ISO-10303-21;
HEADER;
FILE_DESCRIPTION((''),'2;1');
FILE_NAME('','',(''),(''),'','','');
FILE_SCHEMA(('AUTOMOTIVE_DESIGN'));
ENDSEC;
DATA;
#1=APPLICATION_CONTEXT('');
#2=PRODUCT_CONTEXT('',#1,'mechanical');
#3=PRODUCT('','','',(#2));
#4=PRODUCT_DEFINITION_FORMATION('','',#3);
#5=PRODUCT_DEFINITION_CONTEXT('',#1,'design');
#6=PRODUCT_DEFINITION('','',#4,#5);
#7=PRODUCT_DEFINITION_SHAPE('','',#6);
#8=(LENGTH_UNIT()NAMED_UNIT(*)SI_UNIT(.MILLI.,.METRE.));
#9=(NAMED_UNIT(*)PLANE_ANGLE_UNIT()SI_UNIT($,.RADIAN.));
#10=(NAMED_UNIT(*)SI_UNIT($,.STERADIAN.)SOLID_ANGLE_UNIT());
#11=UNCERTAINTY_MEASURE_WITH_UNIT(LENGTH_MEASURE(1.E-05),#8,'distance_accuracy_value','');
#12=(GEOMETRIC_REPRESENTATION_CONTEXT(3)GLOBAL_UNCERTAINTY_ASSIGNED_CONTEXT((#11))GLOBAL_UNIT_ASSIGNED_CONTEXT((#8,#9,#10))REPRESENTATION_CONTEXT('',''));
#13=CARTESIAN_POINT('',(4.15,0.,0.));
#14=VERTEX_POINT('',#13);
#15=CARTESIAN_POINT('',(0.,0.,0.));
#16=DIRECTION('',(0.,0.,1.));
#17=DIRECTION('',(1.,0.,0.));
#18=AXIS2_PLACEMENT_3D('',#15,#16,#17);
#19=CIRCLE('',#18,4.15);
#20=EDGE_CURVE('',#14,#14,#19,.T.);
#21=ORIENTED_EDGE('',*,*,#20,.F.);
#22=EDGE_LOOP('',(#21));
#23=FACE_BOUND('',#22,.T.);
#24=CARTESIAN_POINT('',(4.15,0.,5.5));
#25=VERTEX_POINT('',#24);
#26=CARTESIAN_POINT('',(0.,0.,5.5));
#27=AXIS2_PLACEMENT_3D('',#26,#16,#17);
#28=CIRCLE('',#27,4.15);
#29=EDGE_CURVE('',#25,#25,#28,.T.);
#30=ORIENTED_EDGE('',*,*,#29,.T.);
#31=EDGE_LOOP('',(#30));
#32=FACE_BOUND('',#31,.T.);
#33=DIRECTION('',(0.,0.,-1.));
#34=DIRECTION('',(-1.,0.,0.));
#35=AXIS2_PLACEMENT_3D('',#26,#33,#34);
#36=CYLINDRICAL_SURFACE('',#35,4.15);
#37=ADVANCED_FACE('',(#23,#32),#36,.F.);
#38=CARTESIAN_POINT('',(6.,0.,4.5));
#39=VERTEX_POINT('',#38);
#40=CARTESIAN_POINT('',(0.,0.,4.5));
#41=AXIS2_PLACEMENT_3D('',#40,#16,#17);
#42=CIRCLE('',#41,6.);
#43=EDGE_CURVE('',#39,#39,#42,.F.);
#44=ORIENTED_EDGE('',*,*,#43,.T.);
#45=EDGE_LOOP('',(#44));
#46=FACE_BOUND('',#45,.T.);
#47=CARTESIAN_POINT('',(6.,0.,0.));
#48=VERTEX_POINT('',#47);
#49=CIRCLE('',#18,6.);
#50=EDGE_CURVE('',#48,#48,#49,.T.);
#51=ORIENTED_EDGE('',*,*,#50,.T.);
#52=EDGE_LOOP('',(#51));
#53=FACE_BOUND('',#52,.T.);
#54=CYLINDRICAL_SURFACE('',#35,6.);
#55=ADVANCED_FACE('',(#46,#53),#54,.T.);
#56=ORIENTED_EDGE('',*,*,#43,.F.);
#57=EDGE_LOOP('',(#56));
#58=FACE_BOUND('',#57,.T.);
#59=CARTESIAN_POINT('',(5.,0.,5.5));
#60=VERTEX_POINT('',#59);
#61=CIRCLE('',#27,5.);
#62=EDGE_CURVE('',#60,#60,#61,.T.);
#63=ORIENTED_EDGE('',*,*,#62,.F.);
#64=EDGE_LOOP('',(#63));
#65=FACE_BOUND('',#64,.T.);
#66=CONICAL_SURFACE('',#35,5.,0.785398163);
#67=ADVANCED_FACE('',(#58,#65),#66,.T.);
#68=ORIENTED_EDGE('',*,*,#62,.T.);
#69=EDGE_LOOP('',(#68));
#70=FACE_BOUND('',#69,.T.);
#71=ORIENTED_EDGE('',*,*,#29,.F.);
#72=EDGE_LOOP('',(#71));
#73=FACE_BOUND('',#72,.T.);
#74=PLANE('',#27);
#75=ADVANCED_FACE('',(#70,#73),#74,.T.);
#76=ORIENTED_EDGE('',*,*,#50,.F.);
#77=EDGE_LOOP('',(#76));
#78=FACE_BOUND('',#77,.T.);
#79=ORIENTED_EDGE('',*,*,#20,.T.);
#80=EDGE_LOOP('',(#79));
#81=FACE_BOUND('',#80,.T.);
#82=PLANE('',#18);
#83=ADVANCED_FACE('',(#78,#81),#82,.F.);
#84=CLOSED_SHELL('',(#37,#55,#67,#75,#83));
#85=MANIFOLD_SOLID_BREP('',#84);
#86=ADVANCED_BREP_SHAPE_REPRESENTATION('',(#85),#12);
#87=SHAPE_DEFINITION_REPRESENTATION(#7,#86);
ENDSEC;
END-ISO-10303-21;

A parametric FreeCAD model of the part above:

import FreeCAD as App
import Part
import Sketcher
from FreeCAD import Vector
Q = App.Units.Quantity


def edges_at(feature, points):
    """Names of the edges that pass closest to the given points."""
    edges = feature.Shape.Edges
    near = lambda p: min(range(len(edges)), key=lambda i: edges[i].distToShape(Part.Vertex(*p))[0])
    return sorted({f"Edge{near(p) + 1}" for p in points})

doc = App.newDocument("Part")
body = doc.addObject("PartDesign::Body", "Body")

# Sketch on XY plane
sketch1 = doc.addObject("Sketcher::SketchObject", "Sketch")
body.addObject(sketch1)
sketch1.AttachmentSupport = (doc.XY_Plane, [""])
sketch1.MapMode = "FlatFace"
sketch1.addGeometry([
    Part.Circle(Vector(0, 0, 0), Vector(0, 0, 1), 6),
    Part.Circle(Vector(0, 0, 0), Vector(0, 0, 1), 4.15),
], False)
sketch1.addConstraint([
    Sketcher.Constraint("Coincident", 0, 3, -1, 1),
    Sketcher.Constraint("Coincident", 1, 3, -1, 1),
    Sketcher.Constraint("Diameter", 0, Q("12 mm")),
    Sketcher.Constraint("Diameter", 1, Q("8.3 mm")),
])
pad1 = doc.addObject("PartDesign::Pad", "Pad")
body.addObject(pad1)
pad1.Profile = sketch1
pad1.Length = 5.5
doc.recompute()

chamfer = doc.addObject("PartDesign::Chamfer", "Chamfer")
body.addObject(chamfer)
chamfer.Base = (pad1, edges_at(pad1, [(-6, 0, 5.5)]))
chamfer.Size = 1

doc.recompute()
